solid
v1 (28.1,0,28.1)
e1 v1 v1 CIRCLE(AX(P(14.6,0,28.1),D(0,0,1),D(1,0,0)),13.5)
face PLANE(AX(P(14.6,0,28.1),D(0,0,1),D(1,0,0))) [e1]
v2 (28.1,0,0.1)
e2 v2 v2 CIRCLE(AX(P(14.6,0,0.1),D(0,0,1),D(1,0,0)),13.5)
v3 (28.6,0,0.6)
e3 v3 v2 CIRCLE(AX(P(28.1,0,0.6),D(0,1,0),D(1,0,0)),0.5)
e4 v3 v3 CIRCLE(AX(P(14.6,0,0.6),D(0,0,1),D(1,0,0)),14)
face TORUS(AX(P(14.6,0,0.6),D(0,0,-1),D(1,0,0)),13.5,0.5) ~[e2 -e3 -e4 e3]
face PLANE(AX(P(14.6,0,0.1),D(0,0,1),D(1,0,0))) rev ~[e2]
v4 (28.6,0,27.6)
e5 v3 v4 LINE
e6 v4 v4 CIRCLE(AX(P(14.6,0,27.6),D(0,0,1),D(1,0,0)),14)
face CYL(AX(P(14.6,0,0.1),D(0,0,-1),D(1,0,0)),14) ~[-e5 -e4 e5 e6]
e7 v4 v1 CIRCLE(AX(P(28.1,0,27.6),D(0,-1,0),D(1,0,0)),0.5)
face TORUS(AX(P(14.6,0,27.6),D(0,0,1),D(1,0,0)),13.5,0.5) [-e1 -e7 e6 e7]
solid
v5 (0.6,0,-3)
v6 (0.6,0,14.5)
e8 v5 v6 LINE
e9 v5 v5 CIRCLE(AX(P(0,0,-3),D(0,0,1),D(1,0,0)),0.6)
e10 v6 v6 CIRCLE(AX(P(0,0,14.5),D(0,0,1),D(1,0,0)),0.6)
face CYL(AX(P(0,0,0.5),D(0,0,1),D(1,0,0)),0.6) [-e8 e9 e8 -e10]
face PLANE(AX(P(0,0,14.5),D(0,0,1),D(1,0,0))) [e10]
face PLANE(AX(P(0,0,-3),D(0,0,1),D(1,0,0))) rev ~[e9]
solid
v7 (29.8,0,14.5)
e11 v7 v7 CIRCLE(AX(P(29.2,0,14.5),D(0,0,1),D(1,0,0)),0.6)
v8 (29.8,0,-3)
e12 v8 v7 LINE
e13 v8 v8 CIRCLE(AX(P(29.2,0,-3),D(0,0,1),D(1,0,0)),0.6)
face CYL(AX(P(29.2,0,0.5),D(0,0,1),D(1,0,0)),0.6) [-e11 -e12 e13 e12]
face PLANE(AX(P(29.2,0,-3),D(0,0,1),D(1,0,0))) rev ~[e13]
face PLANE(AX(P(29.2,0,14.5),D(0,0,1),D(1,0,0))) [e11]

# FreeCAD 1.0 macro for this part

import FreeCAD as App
import Part
import Sketcher

V = App.Vector


def edges_at(feature, points):
    """Names of the edges that pass closest to the given points."""
    edges = feature.Shape.Edges
    near = lambda p: min(range(len(edges)), key=lambda i: edges[i].distToShape(Part.Vertex(*p))[0])
    return sorted({f"Edge{near(p) + 1}" for p in points})

doc = App.newDocument("Part")
body = doc.addObject("PartDesign::Body", "Body")
body.AllowCompound = True

# Sketch on XY plane
sketch1 = body.newObject("Sketcher::SketchObject", "Sketch")
sketch1.AttachmentSupport = (doc.getObject("XY_Plane"), [""])
sketch1.MapMode = "FlatFace"
sketch1.AttachmentOffset = App.Placement(V(0, 0, 0.5), App.Rotation())
sketch1.addGeometry([
    Part.Circle(V(0, 0, 0), V(0, 0, 1), 0.6),
    Part.Circle(V(29.2, 0, 0), V(0, 0, 1), 0.6),
], False)
sketch1.addConstraint([
    Sketcher.Constraint("Coincident", 0, 3, -1, 1),
    Sketcher.Constraint("Equal", 0, 1),
    Sketcher.Constraint("PointOnObject", 1, 3, -1),
    Sketcher.Constraint("Diameter", 0, 1.2),
    Sketcher.Constraint("DistanceX", -1, 1, 1, 3, 29.2),
])
pad1 = body.newObject("PartDesign::Pad", "Pad")
pad1.Profile = sketch1
pad1.Type = "TwoLengths"
pad1.Length = 14
pad1.Length2 = 3.5
body2 = doc.addObject("PartDesign::Body", "Body001")

# Sketch on XY plane
sketch2 = body2.newObject("Sketcher::SketchObject", "Sketch001")
sketch2.AttachmentSupport = (doc.getObject("XY_Plane001"), [""])
sketch2.MapMode = "FlatFace"
sketch2.AttachmentOffset = App.Placement(V(0, 0, 0.1), App.Rotation())
sketch2.addGeometry(Part.Circle(V(15, 0, 0), V(0, 0, 1), 14), False)
sketch2.addConstraint([
    Sketcher.Constraint("PointOnObject", 0, 3, -1),
    Sketcher.Constraint("Diameter", 0, 28.0),
    Sketcher.Constraint("DistanceX", -1, 1, 0, 3, 14.6),
])
pad2 = body2.newObject("PartDesign::Pad", "Pad001")
pad2.Profile = sketch2
pad2.Length = 28
doc.recompute()

fillet = body2.newObject("PartDesign::Fillet", "Fillet")
fillet.Base = (pad2, edges_at(pad2, [(0.6, 0, 0.1), (0.6, 0, 28.1)]))
fillet.Radius = 0.5

doc.recompute()
